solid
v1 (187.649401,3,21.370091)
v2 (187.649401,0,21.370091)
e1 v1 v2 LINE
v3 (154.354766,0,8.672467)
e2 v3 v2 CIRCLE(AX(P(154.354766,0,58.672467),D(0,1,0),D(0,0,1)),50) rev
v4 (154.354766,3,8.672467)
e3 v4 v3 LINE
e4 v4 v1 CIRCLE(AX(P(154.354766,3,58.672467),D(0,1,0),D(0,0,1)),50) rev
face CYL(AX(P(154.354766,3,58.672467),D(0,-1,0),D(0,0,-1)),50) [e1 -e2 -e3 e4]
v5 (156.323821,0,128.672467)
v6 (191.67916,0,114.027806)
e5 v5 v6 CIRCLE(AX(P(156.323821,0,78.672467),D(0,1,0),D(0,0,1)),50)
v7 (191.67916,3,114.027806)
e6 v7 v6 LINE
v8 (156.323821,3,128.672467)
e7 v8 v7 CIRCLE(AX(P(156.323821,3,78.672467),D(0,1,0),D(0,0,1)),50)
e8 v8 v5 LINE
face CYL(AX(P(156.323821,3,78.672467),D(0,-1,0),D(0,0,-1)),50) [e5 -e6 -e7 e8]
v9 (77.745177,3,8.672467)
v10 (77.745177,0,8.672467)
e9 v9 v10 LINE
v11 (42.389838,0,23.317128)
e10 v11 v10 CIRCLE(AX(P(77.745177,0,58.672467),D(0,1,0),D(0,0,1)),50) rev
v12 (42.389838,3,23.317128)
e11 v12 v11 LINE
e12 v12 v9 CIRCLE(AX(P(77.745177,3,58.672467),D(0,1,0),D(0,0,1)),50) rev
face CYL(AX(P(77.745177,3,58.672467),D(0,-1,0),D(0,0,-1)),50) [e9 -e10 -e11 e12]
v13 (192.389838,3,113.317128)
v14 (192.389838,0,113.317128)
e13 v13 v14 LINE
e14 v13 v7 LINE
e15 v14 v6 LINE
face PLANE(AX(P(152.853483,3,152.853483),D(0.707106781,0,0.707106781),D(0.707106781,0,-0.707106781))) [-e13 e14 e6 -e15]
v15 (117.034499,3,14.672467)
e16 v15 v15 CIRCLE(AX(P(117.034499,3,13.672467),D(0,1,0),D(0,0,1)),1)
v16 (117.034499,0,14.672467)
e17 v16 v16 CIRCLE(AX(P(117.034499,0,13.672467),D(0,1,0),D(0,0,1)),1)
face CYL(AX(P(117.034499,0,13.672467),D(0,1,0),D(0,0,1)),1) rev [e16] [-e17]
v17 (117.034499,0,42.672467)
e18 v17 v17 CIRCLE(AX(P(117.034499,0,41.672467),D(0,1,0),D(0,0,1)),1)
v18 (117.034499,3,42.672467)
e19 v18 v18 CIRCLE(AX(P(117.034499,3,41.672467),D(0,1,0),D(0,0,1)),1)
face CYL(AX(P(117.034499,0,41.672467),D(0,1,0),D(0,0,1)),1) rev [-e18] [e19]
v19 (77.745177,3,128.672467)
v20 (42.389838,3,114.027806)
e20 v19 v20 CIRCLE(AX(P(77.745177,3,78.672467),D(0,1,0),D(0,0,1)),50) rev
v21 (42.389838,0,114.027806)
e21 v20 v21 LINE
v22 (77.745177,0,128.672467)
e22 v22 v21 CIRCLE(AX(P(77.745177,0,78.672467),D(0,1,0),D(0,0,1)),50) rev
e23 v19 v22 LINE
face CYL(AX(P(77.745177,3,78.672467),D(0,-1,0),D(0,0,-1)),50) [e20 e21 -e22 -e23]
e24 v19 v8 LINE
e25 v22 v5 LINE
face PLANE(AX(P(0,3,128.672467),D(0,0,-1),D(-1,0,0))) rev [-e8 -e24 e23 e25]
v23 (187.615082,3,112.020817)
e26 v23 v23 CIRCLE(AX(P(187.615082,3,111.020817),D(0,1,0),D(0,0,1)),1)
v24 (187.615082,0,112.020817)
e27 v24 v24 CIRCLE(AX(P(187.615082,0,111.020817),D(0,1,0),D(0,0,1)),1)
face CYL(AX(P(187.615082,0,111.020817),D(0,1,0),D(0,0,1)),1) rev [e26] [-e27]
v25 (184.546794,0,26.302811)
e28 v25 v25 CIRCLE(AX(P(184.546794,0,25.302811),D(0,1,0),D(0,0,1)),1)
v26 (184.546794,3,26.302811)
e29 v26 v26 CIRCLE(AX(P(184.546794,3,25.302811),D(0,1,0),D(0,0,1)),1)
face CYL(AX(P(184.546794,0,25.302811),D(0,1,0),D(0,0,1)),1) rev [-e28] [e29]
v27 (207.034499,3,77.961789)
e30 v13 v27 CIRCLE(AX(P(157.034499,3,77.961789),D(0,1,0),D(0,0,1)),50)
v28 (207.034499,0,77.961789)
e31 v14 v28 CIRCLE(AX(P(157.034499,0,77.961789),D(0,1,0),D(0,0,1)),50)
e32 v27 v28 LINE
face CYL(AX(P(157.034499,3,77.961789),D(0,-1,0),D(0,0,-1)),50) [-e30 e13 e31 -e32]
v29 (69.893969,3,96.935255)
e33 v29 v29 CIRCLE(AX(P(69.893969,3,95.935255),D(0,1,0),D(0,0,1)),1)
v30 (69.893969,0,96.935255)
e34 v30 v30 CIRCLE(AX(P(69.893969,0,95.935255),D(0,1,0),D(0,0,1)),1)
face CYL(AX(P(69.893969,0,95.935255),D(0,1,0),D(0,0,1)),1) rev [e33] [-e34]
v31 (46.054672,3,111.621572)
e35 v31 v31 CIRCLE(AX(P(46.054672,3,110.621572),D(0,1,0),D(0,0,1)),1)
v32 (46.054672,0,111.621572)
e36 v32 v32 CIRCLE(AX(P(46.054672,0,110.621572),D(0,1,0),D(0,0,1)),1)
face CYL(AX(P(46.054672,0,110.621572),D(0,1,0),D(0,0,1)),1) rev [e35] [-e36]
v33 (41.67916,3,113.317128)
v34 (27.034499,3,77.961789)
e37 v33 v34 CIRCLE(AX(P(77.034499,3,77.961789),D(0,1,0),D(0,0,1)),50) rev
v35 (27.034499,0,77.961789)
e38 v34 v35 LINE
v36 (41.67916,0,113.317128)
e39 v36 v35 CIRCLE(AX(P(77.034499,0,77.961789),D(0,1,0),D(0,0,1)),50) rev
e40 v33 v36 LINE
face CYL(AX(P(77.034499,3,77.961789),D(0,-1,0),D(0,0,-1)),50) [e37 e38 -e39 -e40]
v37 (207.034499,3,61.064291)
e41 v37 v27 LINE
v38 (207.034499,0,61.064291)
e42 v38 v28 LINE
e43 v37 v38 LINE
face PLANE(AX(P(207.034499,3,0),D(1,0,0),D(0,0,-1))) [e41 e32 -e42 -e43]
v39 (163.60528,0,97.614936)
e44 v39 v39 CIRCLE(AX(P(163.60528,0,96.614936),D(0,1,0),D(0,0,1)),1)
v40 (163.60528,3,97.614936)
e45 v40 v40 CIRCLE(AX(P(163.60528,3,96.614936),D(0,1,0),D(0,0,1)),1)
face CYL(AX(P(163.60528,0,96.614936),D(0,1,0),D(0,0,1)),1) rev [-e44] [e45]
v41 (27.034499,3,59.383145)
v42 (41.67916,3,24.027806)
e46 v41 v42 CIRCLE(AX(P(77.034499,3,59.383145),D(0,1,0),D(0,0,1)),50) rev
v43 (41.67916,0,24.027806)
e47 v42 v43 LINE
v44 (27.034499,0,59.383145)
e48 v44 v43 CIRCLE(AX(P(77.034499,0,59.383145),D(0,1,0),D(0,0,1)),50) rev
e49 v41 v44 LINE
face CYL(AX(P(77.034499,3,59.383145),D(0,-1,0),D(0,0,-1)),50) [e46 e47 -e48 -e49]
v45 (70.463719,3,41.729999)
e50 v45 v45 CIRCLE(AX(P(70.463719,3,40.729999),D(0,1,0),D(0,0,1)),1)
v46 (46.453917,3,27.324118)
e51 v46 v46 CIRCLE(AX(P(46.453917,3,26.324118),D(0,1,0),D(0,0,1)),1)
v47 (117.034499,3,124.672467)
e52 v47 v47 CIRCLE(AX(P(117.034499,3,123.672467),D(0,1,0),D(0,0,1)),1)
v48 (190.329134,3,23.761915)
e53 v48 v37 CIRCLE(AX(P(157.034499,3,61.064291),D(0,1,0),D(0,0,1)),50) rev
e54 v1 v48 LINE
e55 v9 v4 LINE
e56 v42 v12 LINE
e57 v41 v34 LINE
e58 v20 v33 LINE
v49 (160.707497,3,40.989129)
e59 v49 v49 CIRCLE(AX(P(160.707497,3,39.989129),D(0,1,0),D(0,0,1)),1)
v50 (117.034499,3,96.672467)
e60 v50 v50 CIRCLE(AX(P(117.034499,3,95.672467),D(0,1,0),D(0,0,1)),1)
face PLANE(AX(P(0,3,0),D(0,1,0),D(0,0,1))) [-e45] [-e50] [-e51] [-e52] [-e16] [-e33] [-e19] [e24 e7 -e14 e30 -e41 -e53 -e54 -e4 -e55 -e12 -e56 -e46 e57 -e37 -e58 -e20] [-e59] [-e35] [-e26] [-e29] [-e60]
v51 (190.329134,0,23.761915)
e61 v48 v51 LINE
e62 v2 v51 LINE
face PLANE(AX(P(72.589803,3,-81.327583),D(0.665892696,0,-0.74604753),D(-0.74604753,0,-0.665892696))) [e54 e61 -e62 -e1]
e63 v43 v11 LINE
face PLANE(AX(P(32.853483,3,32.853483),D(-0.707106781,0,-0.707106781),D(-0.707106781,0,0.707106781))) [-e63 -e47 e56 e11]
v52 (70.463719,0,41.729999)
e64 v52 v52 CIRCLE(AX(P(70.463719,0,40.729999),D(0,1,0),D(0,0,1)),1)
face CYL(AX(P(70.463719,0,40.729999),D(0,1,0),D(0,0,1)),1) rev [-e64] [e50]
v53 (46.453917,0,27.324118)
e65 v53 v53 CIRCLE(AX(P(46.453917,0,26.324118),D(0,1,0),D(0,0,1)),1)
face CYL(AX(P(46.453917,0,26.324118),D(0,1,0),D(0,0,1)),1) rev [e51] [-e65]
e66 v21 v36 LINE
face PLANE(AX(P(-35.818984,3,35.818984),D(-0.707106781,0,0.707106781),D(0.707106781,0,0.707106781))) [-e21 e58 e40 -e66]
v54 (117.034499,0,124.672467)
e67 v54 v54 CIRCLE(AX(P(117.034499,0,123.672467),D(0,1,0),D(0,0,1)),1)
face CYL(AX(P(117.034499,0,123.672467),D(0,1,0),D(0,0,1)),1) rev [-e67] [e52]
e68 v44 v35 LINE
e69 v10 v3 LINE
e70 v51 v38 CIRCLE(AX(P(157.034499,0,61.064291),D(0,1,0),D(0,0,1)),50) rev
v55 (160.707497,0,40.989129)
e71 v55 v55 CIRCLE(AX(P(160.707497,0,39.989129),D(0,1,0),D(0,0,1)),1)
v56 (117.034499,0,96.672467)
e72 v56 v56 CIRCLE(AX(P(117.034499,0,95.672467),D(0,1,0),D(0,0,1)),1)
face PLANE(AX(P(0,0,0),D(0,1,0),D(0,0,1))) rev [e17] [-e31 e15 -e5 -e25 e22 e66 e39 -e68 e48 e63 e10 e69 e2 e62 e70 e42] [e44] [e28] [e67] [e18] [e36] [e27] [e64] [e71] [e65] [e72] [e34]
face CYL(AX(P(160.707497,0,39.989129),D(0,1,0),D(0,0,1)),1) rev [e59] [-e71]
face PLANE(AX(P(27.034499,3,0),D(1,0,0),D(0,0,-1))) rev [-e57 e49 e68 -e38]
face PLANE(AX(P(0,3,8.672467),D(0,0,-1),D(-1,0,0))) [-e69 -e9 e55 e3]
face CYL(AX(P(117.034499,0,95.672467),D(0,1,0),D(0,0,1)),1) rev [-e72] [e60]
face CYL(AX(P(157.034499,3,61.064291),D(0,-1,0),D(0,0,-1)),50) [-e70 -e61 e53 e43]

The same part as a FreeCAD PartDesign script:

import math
import FreeCAD as App
import Part
import Sketcher

V = App.Vector
Q = App.Units.Quantity

doc = App.newDocument("Part")
params = doc.addObject("Spreadsheet::Sheet", "Params")
for row, (alias, value) in enumerate([
    ("sketch1_radius", "50 mm"),
    ("pad1_length", "3 mm"),
    ("sketch2_diameter", "2 mm"),
], start=1):
    params.set(f"A{row}", alias)
    params.set(f"B{row}", "=" + value)
    params.setAlias(f"B{row}", alias)

body = doc.addObject("PartDesign::Body", "Body")

# Sketch on XZ plane
sketch1 = body.newObject("Sketcher::SketchObject", "Sketch")
sketch1.AttachmentSupport = (doc.getObject("XZ_Plane"), [""])
sketch1.MapMode = "FlatFace"
sketch1.addGeometry([
    Part.LineSegment(V(27.034499, 59.383145, 0), V(27.034499, 77.961789, 0)),  # 0
    Part.ArcOfCircle(Part.Circle(V(77.034499, 77.961789, 0), V(0, 0, 1), 50), math.radians(135), math.radians(180)),  # 1
    Part.LineSegment(V(41.67916, 113.317128, 0), V(42.389838, 114.027806, 0)),  # 2
    Part.ArcOfCircle(Part.Circle(V(77.745177, 78.672467, 0), V(0, 0, 1), 50), math.radians(90), math.radians(135)),  # 3
    Part.LineSegment(V(77.745177, 128.672467, 0), V(156.323821, 128.672467, 0)),  # 4
    Part.ArcOfCircle(Part.Circle(V(156.323821, 78.672467, 0), V(0, 0, 1), 50), math.radians(45), math.radians(90)),  # 5
    Part.LineSegment(V(191.67916, 114.027806, 0), V(192.389838, 113.317128, 0)),  # 6
    Part.ArcOfCircle(Part.Circle(V(157.034499, 77.961789, 0), V(0, 0, 1), 50), math.radians(0), math.radians(45)),  # 7
    Part.LineSegment(V(207.034499, 77.961789, 0), V(207.034499, 61.064291, 0)),  # 8
    Part.ArcOfCircle(Part.Circle(V(157.034499, 61.064291, 0), V(0, 0, 1), 50), math.radians(-48.249153), math.radians(0)),  # 9
    Part.LineSegment(V(190.329134, 23.761915, 0), V(187.649401, 21.370091, 0)),  # 10
    Part.ArcOfCircle(Part.Circle(V(154.354766, 58.672467, 0), V(0, 0, 1), 50), math.radians(-90), math.radians(-48.249153)),  # 11
    Part.LineSegment(V(154.354766, 8.672467, 0), V(77.745177, 8.672467, 0)),  # 12
    Part.ArcOfCircle(Part.Circle(V(77.745177, 58.672467, 0), V(0, 0, 1), 50), math.radians(-135), math.radians(-90)),  # 13
    Part.LineSegment(V(42.389838, 23.317128, 0), V(41.67916, 24.027806, 0)),  # 14
    Part.ArcOfCircle(Part.Circle(V(77.034499, 59.383145, 0), V(0, 0, 1), 50), math.radians(-180), math.radians(-135)),  # 15
], False)
sketch1.addConstraint([
    Sketcher.Constraint("Tangent", 0, 2, 1, 2),
    Sketcher.Constraint("Tangent", 1, 1, 2, 1),
    Sketcher.Constraint("Tangent", 2, 2, 3, 2),
    Sketcher.Constraint("Tangent", 3, 1, 4, 1),
    Sketcher.Constraint("Tangent", 4, 2, 5, 2),
    Sketcher.Constraint("Tangent", 5, 1, 6, 1),
    Sketcher.Constraint("Tangent", 6, 2, 7, 2),
    Sketcher.Constraint("Tangent", 7, 1, 8, 1),
    Sketcher.Constraint("Tangent", 8, 2, 9, 2),
    Sketcher.Constraint("Tangent", 9, 1, 10, 1),
    Sketcher.Constraint("Tangent", 10, 2, 11, 2),
    Sketcher.Constraint("Tangent", 11, 1, 12, 1),
    Sketcher.Constraint("Tangent", 12, 2, 13, 2),
    Sketcher.Constraint("Tangent", 13, 1, 14, 1),
    Sketcher.Constraint("Tangent", 14, 2, 15, 2),
    Sketcher.Constraint("Tangent", 15, 1, 0, 1),
    Sketcher.Constraint("Vertical", 0),
    Sketcher.Constraint("Horizontal", 4),
    Sketcher.Constraint("Vertical", 8),
    Sketcher.Constraint("Horizontal", 12),
    Sketcher.Constraint("Equal", 1, 3),
    Sketcher.Constraint("Equal", 3, 5),
    Sketcher.Constraint("Equal", 5, 7),
    Sketcher.Constraint("Equal", 7, 9),
    Sketcher.Constraint("Equal", 9, 11),
    Sketcher.Constraint("Equal", 11, 13),
    Sketcher.Constraint("Equal", 13, 15),
    Sketcher.Constraint("Perpendicular", 2, 6),
    Sketcher.Constraint("Parallel", 6, 14),
    Sketcher.Constraint("Horizontal", 1, 3, 7, 3),
    Sketcher.Constraint("Horizontal", 2, 2, 5, 1),
    Sketcher.Constraint("Vertical", 3, 3, 13, 3),
    Sketcher.Constraint("Radius", 1, Q("50 mm")),
    Sketcher.Constraint("DistanceX", 1, 3, 7, 3, Q("80 mm")),
    Sketcher.Constraint("DistanceY", 11, 3, 5, 3, Q("20 mm")),
    Sketcher.Constraint("DistanceX", 12, 2, 12, 1, Q("76.609589 mm")),
    Sketcher.Constraint("DistanceX", -1, 1, 1, 3, Q("77.034499 mm")),
    Sketcher.Constraint("DistanceX", -1, 1, 10, 2, Q("187.649401 mm")),
    Sketcher.Constraint("DistanceY", 10, 2, 8, 2, Q("39.694201 mm")),
    Sketcher.Constraint("DistanceY", -1, 1, 1, 3, Q("77.961789 mm")),
])
sketch1.setExpression("Constraints[32]", "Params.sketch1_radius")
pad1 = body.newObject("PartDesign::Pad", "Pad")
pad1.Profile = sketch1
pad1.setExpression("Length", "Params.pad1_length")
pad1.Reversed = True

# Sketch on XZ plane
sketch2 = body.newObject("Sketcher::SketchObject", "Sketch001")
sketch2.AttachmentSupport = (doc.getObject("XZ_Plane"), [""])
sketch2.MapMode = "FlatFace"
sketch2.AttachmentOffset = App.Placement(V(0, 0, -3), App.Rotation())
sketch2.addGeometry([
    Part.Circle(V(70.463719, 40.729999, 0), V(0, 0, 1), 1),  # 0
    Part.Circle(V(46.453917, 26.324118, 0), V(0, 0, 1), 1),  # 1
    Part.Circle(V(117.034499, 41.672467, 0), V(0, 0, 1), 1),  # 2
    Part.Circle(V(184.546794, 25.302811, 0), V(0, 0, 1), 1),  # 3
    Part.Circle(V(117.034499, 13.672467, 0), V(0, 0, 1), 1),  # 4
    Part.Circle(V(160.707497, 39.989129, 0), V(0, 0, 1), 1),  # 5
    Part.Circle(V(163.60528, 96.614936, 0), V(0, 0, 1), 1),  # 6
    Part.Circle(V(187.615082, 111.020817, 0), V(0, 0, 1), 1),  # 7
    Part.Circle(V(117.034499, 95.672467, 0), V(0, 0, 1), 1),  # 8
    Part.Circle(V(117.034499, 123.672467, 0), V(0, 0, 1), 1),  # 9
    Part.Circle(V(46.054672, 110.621572, 0), V(0, 0, 1), 1),  # 10
    Part.Circle(V(69.893969, 95.935255, 0), V(0, 0, 1), 1),  # 11
], False)
sketch2.addConstraint([
    Sketcher.Constraint("Equal", 0, 1),
    Sketcher.Constraint("Equal", 1, 2),
    Sketcher.Constraint("Equal", 2, 3),
    Sketcher.Constraint("Equal", 3, 4),
    Sketcher.Constraint("Equal", 4, 5),
    Sketcher.Constraint("Equal", 5, 6),
    Sketcher.Constraint("Equal", 6, 7),
    Sketcher.Constraint("Equal", 7, 8),
    Sketcher.Constraint("Equal", 8, 9),
    Sketcher.Constraint("Equal", 9, 10),
    Sketcher.Constraint("Equal", 10, 11),
    Sketcher.Constraint("Vertical", 2, 3, 4, 3),
    Sketcher.Constraint("Vertical", 4, 3, 8, 3),
    Sketcher.Constraint("Vertical", 8, 3, 9, 3),
    Sketcher.Constraint("Diameter", 0, Q("2 mm")),
    Sketcher.Constraint("DistanceY", 4, 3, 2, 3, Q("28 mm")),
    Sketcher.Constraint("DistanceY", 2, 3, 8, 3, Q("54 mm")),
    Sketcher.Constraint("DistanceY", 8, 3, 9, 3, Q("28 mm")),
    Sketcher.Constraint("DistanceY", -1, 1, 0, 3, Q("40.729999 mm")),
    Sketcher.Constraint("DistanceX", -1, 1, 2, 3, Q("117.034499 mm")),
    Sketcher.Constraint("DistanceX", 1, 3, 0, 3, Q("24.009802 mm")),
    Sketcher.Constraint("DistanceX", 6, 3, 7, 3, Q("24.009802 mm")),
    Sketcher.Constraint("DistanceX", -1, 1, 0, 3, Q("70.463719 mm")),
    Sketcher.Constraint("DistanceY", -1, 1, 3, 3, Q("25.302811 mm")),
    Sketcher.Constraint("DistanceY", -1, 1, 5, 3, Q("39.989129 mm")),
    Sketcher.Constraint("DistanceX", -1, 1, 6, 3, Q("163.60528 mm")),
    Sketcher.Constraint("DistanceX", -1, 1, 11, 3, Q("69.893969 mm")),
    Sketcher.Constraint("DistanceY", 1, 3, 0, 3, Q("14.405881 mm")),
    Sketcher.Constraint("DistanceY", 0, 3, 2, 3, Q("0.942468 mm")),
    Sketcher.Constraint("DistanceX", 0, 3, 5, 3, Q("90.243778 mm")),
    Sketcher.Constraint("DistanceY", 2, 3, 6, 3, Q("54.942468 mm")),
    Sketcher.Constraint("DistanceY", 6, 3, 7, 3, Q("14.405881 mm")),
    Sketcher.Constraint("DistanceX", 3, 3, 7, 3, Q("3.068288 mm")),
    Sketcher.Constraint("DistanceX", -1, 1, 10, 3, Q("46.054672 mm")),
    Sketcher.Constraint("DistanceY", -1, 1, 10, 3, Q("110.621572 mm")),
    Sketcher.Constraint("DistanceY", -1, 1, 11, 3, Q("95.935255 mm")),
])
sketch2.setExpression("Constraints[14]", "Params.sketch2_diameter")
pocket1 = body.newObject("PartDesign::Pocket", "Pocket")
pocket1.Profile = sketch2
pocket1.Type = "ThroughAll"
pocket1.Reversed = True

doc.recompute()
